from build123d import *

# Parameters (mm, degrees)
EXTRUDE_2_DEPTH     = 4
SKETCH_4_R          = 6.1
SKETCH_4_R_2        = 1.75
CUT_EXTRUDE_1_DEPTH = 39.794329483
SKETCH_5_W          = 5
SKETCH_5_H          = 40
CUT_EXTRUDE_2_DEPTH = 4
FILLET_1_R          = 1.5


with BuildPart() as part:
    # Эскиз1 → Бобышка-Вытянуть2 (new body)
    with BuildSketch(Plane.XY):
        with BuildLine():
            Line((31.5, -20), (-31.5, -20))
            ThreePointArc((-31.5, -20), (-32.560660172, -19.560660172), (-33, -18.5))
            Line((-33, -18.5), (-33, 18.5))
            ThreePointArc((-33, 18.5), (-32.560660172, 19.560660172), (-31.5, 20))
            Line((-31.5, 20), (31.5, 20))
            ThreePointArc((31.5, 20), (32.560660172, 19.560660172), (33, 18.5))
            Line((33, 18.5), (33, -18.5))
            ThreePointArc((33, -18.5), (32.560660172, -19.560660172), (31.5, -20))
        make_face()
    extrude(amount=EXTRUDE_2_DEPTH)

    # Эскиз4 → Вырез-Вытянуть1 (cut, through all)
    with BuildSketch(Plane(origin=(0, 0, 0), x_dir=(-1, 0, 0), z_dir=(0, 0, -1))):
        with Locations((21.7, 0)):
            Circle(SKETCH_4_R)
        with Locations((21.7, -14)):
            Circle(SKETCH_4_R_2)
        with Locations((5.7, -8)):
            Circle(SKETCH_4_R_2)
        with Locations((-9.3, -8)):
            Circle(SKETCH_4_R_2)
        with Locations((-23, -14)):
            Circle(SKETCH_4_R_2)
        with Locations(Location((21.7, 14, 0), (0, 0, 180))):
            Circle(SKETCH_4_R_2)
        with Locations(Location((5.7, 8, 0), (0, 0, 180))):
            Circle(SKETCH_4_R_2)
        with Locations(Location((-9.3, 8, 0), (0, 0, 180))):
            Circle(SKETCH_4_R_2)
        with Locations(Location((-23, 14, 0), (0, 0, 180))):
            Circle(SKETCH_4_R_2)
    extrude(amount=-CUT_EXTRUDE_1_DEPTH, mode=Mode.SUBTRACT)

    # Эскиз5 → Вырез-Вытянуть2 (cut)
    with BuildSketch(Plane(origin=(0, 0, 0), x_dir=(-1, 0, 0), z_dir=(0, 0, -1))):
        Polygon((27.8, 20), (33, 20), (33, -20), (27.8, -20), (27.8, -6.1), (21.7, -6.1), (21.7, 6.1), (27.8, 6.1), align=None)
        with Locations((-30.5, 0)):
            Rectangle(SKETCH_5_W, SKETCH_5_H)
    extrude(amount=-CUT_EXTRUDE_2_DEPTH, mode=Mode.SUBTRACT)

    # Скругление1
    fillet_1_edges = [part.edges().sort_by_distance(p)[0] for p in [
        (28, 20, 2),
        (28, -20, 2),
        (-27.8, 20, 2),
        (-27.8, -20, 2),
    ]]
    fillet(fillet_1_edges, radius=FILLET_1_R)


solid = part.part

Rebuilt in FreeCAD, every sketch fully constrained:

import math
import FreeCAD as App
import Part
import Sketcher

V = App.Vector


def edges_at(feature, points):
    """Names of the edges that pass closest to the given points."""
    edges = feature.Shape.Edges
    near = lambda p: min(range(len(edges)), key=lambda i: edges[i].distToShape(Part.Vertex(*p))[0])
    return sorted({f"Edge{near(p) + 1}" for p in points})

doc = App.newDocument("Part")
body = doc.addObject("PartDesign::Body", "Body")

sketch1 = body.newObject("Sketcher::SketchObject", "Sketch")
sketch1.AttachmentSupport = (doc.getObject("XY_Plane"), [""])
sketch1.MapMode = "FlatFace"
sketch1.addGeometry([
    Part.LineSegment(V(-31.5, -20, 0), V(31.5, -20, 0)),
    Part.ArcOfCircle(Part.Circle(V(31.5, -18.5, 0), V(0, 0, 1), 1.5), math.radians(-90), math.radians(0)),
    Part.LineSegment(V(33, -18.5, 0), V(33, 18.5, 0)),
    Part.ArcOfCircle(Part.Circle(V(31.5, 18.5, 0), V(0, 0, 1), 1.5), math.radians(0), math.radians(90)),
    Part.LineSegment(V(31.5, 20, 0), V(-31.5, 20, 0)),
    Part.ArcOfCircle(Part.Circle(V(-31.5, 18.5, 0), V(0, 0, 1), 1.5), math.radians(90), math.radians(180)),
    Part.LineSegment(V(-33, 18.5, 0), V(-33, -18.5, 0)),
    Part.ArcOfCircle(Part.Circle(V(-31.5, -18.5, 0), V(0, 0, 1), 1.5), math.radians(180), math.radians(270)),
], False)
sketch1.addConstraint([
    Sketcher.Constraint("Tangent", 0, 2, 1, 1),
    Sketcher.Constraint("Tangent", 1, 2, 2, 1),
    Sketcher.Constraint("Tangent", 2, 2, 3, 1),
    Sketcher.Constraint("Tangent", 3, 2, 4, 1),
    Sketcher.Constraint("Tangent", 4, 2, 5, 1),
    Sketcher.Constraint("Tangent", 5, 2, 6, 1),
    Sketcher.Constraint("Tangent", 6, 2, 7, 1),
    Sketcher.Constraint("Tangent", 7, 2, 0, 1),
    Sketcher.Constraint("Horizontal", 0),
    Sketcher.Constraint("Vertical", 2),
    Sketcher.Constraint("Horizontal", 4),
    Sketcher.Constraint("Vertical", 6),
    Sketcher.Constraint("Equal", 1, 3),
    Sketcher.Constraint("Equal", 3, 5),
    Sketcher.Constraint("Equal", 5, 7),
    Sketcher.Constraint("Symmetric", 1, 3, 5, 3, -1, 1),
    Sketcher.Constraint("Radius", 1, 1.5),
    Sketcher.Constraint("DistanceX", 0, 1, 0, 2, 63.0),
    Sketcher.Constraint("DistanceY", 2, 1, 2, 2, 37.0),
])
pad1 = body.newObject("PartDesign::Pad", "Pad")
pad1.Profile = sketch1
pad1.Length = 4

sketch2 = body.newObject("Sketcher::SketchObject", "Sketch001")
sketch2.AttachmentSupport = (doc.getObject("XY_Plane"), [""])
sketch2.MapMode = "FlatFace"
sketch2.addGeometry([
    Part.Circle(V(-21.7, 0, 0), V(0, 0, 1), 6.1),
    Part.Circle(V(-21.7, -14, 0), V(0, 0, 1), 1.75),
    Part.Circle(V(-5.7, -8, 0), V(0, 0, 1), 1.75),
    Part.Circle(V(9.3, -8, 0), V(0, 0, 1), 1.75),
    Part.Circle(V(23, -14, 0), V(0, 0, 1), 1.75),
    Part.Circle(V(-21.7, 14, 0), V(0, 0, 1), 1.75),
    Part.Circle(V(-5.7, 8, 0), V(0, 0, 1), 1.75),
    Part.Circle(V(9.3, 8, 0), V(0, 0, 1), 1.75),
    Part.Circle(V(23, 14, 0), V(0, 0, 1), 1.75),
], False)
sketch2.addConstraint([
    Sketcher.Constraint("Equal", 1, 2),
    Sketcher.Constraint("Equal", 2, 3),
    Sketcher.Constraint("Equal", 3, 4),
    Sketcher.Constraint("Equal", 4, 5),
    Sketcher.Constraint("Equal", 5, 6),
    Sketcher.Constraint("Equal", 6, 7),
    Sketcher.Constraint("Equal", 7, 8),
    Sketcher.Constraint("Symmetric", 1, 3, 5, 3, -1),
    Sketcher.Constraint("Symmetric", 2, 3, 6, 3, -1),
    Sketcher.Constraint("Symmetric", 3, 3, 7, 3, -1),
    Sketcher.Constraint("Symmetric", 4, 3, 8, 3, -1),
    Sketcher.Constraint("PointOnObject", 0, 3, -1),
    Sketcher.Constraint("Horizontal", 2, 3, 3, 3),
    Sketcher.Constraint("Horizontal", 1, 3, 4, 3),
    Sketcher.Constraint("Vertical", 0, 3, 1, 3),
    Sketcher.Constraint("Diameter", 0, 12.2),
    Sketcher.Constraint("Diameter", 1, 3.5),
    Sketcher.Constraint("DistanceY", 1, 3, -1, 1, 14.0),
    Sketcher.Constraint("DistanceY", 2, 3, -1, 1, 8.0),
    Sketcher.Constraint("DistanceX", -1, 1, 4, 3, 23.0),
    Sketcher.Constraint("DistanceX", 1, 3, 2, 3, 16.0),
    Sketcher.Constraint("DistanceX", 2, 3, 3, 3, 15.0),
    Sketcher.Constraint("DistanceX", 0, 3, -1, 1, 21.7),
])
pocket1 = body.newObject("PartDesign::Pocket", "Pocket")
pocket1.Profile = sketch2
pocket1.Type = "ThroughAll"
pocket1.Reversed = True

sketch3 = body.newObject("Sketcher::SketchObject", "Sketch002")
sketch3.AttachmentSupport = (doc.getObject("XY_Plane"), [""])
sketch3.MapMode = "FlatFace"
sketch3.addGeometry([
    Part.LineSegment(V(-33, 20, 0), V(-27.8, 20, 0)),
    Part.LineSegment(V(-27.8, 20, 0), V(-27.8, 6.1, 0)),
    Part.LineSegment(V(-27.8, 6.1, 0), V(-21.7, 6.1, 0)),
    Part.LineSegment(V(-21.7, 6.1, 0), V(-21.7, -6.1, 0)),
    Part.LineSegment(V(-21.7, -6.1, 0), V(-27.8, -6.1, 0)),
    Part.LineSegment(V(-27.8, -6.1, 0), V(-27.8, -20, 0)),
    Part.LineSegment(V(-27.8, -20, 0), V(-33, -20, 0)),
    Part.LineSegment(V(-33, -20, 0), V(-33, 20, 0)),
    Part.LineSegment(V(33, 20, 0), V(33, -20, 0)),
    Part.LineSegment(V(33, -20, 0), V(28, -20, 0)),
    Part.LineSegment(V(28, -20, 0), V(28, 20, 0)),
    Part.LineSegment(V(28, 20, 0), V(33, 20, 0)),
], False)
sketch3.addConstraint([
    Sketcher.Constraint("Coincident", 0, 2, 1, 1),
    Sketcher.Constraint("Coincident", 1, 2, 2, 1),
    Sketcher.Constraint("Coincident", 2, 2, 3, 1),
    Sketcher.Constraint("Coincident", 3, 2, 4, 1),
    Sketcher.Constraint("Coincident", 4, 2, 5, 1),
    Sketcher.Constraint("Coincident", 5, 2, 6, 1),
    Sketcher.Constraint("Coincident", 6, 2, 7, 1),
    Sketcher.Constraint("Coincident", 7, 2, 0, 1),
    Sketcher.Constraint("Coincident", 8, 2, 9, 1),
    Sketcher.Constraint("Coincident", 9, 2, 10, 1),
    Sketcher.Constraint("Coincident", 10, 2, 11, 1),
    Sketcher.Constraint("Coincident", 11, 2, 8, 1),
    Sketcher.Constraint("Horizontal", 0),
    Sketcher.Constraint("Vertical", 1),
    Sketcher.Constraint("Horizontal", 2),
    Sketcher.Constraint("Vertical", 3),
    Sketcher.Constraint("Horizontal", 4),
    Sketcher.Constraint("Vertical", 5),
    Sketcher.Constraint("Horizontal", 6),
    Sketcher.Constraint("Vertical", 7),
    Sketcher.Constraint("Vertical", 8),
    Sketcher.Constraint("Horizontal", 9),
    Sketcher.Constraint("Vertical", 10),
    Sketcher.Constraint("Horizontal", 11),
    Sketcher.Constraint("Symmetric", 7, 2, 8, 2, -1, 1),
    Sketcher.Constraint("Symmetric", 1, 2, 4, 2, -1),
    Sketcher.Constraint("Horizontal", 6, 2, 8, 2),
    Sketcher.Constraint("Horizontal", 7, 2, 10, 2),
    Sketcher.Constraint("DistanceX", 9, 2, 9, 1, 5.0),
    Sketcher.Constraint("DistanceY", 7, 1, 7, 2, 40.0),
    Sketcher.Constraint("DistanceX", 0, 1, 0, 2, 5.2),
    Sketcher.Constraint("DistanceX", 2, 1, 2, 2, 6.1),
    Sketcher.Constraint("DistanceY", 1, 2, 1, 1, 13.9),
    Sketcher.Constraint("DistanceX", 6, 2, -1, 1, 33.0),
])
pocket2 = body.newObject("PartDesign::Pocket", "Pocket001")
pocket2.Profile = sketch3
pocket2.Length = 4
pocket2.Reversed = True
doc.recompute()

fillet = body.newObject("PartDesign::Fillet", "Fillet")
fillet.Base = (pocket2, edges_at(pocket2, [
    (28, 20, 2),
    (28, -20, 2),
    (-27.8, 20, 2),
    (-27.8, -20, 2),
]))
fillet.Radius = 1.5

doc.recompute()
